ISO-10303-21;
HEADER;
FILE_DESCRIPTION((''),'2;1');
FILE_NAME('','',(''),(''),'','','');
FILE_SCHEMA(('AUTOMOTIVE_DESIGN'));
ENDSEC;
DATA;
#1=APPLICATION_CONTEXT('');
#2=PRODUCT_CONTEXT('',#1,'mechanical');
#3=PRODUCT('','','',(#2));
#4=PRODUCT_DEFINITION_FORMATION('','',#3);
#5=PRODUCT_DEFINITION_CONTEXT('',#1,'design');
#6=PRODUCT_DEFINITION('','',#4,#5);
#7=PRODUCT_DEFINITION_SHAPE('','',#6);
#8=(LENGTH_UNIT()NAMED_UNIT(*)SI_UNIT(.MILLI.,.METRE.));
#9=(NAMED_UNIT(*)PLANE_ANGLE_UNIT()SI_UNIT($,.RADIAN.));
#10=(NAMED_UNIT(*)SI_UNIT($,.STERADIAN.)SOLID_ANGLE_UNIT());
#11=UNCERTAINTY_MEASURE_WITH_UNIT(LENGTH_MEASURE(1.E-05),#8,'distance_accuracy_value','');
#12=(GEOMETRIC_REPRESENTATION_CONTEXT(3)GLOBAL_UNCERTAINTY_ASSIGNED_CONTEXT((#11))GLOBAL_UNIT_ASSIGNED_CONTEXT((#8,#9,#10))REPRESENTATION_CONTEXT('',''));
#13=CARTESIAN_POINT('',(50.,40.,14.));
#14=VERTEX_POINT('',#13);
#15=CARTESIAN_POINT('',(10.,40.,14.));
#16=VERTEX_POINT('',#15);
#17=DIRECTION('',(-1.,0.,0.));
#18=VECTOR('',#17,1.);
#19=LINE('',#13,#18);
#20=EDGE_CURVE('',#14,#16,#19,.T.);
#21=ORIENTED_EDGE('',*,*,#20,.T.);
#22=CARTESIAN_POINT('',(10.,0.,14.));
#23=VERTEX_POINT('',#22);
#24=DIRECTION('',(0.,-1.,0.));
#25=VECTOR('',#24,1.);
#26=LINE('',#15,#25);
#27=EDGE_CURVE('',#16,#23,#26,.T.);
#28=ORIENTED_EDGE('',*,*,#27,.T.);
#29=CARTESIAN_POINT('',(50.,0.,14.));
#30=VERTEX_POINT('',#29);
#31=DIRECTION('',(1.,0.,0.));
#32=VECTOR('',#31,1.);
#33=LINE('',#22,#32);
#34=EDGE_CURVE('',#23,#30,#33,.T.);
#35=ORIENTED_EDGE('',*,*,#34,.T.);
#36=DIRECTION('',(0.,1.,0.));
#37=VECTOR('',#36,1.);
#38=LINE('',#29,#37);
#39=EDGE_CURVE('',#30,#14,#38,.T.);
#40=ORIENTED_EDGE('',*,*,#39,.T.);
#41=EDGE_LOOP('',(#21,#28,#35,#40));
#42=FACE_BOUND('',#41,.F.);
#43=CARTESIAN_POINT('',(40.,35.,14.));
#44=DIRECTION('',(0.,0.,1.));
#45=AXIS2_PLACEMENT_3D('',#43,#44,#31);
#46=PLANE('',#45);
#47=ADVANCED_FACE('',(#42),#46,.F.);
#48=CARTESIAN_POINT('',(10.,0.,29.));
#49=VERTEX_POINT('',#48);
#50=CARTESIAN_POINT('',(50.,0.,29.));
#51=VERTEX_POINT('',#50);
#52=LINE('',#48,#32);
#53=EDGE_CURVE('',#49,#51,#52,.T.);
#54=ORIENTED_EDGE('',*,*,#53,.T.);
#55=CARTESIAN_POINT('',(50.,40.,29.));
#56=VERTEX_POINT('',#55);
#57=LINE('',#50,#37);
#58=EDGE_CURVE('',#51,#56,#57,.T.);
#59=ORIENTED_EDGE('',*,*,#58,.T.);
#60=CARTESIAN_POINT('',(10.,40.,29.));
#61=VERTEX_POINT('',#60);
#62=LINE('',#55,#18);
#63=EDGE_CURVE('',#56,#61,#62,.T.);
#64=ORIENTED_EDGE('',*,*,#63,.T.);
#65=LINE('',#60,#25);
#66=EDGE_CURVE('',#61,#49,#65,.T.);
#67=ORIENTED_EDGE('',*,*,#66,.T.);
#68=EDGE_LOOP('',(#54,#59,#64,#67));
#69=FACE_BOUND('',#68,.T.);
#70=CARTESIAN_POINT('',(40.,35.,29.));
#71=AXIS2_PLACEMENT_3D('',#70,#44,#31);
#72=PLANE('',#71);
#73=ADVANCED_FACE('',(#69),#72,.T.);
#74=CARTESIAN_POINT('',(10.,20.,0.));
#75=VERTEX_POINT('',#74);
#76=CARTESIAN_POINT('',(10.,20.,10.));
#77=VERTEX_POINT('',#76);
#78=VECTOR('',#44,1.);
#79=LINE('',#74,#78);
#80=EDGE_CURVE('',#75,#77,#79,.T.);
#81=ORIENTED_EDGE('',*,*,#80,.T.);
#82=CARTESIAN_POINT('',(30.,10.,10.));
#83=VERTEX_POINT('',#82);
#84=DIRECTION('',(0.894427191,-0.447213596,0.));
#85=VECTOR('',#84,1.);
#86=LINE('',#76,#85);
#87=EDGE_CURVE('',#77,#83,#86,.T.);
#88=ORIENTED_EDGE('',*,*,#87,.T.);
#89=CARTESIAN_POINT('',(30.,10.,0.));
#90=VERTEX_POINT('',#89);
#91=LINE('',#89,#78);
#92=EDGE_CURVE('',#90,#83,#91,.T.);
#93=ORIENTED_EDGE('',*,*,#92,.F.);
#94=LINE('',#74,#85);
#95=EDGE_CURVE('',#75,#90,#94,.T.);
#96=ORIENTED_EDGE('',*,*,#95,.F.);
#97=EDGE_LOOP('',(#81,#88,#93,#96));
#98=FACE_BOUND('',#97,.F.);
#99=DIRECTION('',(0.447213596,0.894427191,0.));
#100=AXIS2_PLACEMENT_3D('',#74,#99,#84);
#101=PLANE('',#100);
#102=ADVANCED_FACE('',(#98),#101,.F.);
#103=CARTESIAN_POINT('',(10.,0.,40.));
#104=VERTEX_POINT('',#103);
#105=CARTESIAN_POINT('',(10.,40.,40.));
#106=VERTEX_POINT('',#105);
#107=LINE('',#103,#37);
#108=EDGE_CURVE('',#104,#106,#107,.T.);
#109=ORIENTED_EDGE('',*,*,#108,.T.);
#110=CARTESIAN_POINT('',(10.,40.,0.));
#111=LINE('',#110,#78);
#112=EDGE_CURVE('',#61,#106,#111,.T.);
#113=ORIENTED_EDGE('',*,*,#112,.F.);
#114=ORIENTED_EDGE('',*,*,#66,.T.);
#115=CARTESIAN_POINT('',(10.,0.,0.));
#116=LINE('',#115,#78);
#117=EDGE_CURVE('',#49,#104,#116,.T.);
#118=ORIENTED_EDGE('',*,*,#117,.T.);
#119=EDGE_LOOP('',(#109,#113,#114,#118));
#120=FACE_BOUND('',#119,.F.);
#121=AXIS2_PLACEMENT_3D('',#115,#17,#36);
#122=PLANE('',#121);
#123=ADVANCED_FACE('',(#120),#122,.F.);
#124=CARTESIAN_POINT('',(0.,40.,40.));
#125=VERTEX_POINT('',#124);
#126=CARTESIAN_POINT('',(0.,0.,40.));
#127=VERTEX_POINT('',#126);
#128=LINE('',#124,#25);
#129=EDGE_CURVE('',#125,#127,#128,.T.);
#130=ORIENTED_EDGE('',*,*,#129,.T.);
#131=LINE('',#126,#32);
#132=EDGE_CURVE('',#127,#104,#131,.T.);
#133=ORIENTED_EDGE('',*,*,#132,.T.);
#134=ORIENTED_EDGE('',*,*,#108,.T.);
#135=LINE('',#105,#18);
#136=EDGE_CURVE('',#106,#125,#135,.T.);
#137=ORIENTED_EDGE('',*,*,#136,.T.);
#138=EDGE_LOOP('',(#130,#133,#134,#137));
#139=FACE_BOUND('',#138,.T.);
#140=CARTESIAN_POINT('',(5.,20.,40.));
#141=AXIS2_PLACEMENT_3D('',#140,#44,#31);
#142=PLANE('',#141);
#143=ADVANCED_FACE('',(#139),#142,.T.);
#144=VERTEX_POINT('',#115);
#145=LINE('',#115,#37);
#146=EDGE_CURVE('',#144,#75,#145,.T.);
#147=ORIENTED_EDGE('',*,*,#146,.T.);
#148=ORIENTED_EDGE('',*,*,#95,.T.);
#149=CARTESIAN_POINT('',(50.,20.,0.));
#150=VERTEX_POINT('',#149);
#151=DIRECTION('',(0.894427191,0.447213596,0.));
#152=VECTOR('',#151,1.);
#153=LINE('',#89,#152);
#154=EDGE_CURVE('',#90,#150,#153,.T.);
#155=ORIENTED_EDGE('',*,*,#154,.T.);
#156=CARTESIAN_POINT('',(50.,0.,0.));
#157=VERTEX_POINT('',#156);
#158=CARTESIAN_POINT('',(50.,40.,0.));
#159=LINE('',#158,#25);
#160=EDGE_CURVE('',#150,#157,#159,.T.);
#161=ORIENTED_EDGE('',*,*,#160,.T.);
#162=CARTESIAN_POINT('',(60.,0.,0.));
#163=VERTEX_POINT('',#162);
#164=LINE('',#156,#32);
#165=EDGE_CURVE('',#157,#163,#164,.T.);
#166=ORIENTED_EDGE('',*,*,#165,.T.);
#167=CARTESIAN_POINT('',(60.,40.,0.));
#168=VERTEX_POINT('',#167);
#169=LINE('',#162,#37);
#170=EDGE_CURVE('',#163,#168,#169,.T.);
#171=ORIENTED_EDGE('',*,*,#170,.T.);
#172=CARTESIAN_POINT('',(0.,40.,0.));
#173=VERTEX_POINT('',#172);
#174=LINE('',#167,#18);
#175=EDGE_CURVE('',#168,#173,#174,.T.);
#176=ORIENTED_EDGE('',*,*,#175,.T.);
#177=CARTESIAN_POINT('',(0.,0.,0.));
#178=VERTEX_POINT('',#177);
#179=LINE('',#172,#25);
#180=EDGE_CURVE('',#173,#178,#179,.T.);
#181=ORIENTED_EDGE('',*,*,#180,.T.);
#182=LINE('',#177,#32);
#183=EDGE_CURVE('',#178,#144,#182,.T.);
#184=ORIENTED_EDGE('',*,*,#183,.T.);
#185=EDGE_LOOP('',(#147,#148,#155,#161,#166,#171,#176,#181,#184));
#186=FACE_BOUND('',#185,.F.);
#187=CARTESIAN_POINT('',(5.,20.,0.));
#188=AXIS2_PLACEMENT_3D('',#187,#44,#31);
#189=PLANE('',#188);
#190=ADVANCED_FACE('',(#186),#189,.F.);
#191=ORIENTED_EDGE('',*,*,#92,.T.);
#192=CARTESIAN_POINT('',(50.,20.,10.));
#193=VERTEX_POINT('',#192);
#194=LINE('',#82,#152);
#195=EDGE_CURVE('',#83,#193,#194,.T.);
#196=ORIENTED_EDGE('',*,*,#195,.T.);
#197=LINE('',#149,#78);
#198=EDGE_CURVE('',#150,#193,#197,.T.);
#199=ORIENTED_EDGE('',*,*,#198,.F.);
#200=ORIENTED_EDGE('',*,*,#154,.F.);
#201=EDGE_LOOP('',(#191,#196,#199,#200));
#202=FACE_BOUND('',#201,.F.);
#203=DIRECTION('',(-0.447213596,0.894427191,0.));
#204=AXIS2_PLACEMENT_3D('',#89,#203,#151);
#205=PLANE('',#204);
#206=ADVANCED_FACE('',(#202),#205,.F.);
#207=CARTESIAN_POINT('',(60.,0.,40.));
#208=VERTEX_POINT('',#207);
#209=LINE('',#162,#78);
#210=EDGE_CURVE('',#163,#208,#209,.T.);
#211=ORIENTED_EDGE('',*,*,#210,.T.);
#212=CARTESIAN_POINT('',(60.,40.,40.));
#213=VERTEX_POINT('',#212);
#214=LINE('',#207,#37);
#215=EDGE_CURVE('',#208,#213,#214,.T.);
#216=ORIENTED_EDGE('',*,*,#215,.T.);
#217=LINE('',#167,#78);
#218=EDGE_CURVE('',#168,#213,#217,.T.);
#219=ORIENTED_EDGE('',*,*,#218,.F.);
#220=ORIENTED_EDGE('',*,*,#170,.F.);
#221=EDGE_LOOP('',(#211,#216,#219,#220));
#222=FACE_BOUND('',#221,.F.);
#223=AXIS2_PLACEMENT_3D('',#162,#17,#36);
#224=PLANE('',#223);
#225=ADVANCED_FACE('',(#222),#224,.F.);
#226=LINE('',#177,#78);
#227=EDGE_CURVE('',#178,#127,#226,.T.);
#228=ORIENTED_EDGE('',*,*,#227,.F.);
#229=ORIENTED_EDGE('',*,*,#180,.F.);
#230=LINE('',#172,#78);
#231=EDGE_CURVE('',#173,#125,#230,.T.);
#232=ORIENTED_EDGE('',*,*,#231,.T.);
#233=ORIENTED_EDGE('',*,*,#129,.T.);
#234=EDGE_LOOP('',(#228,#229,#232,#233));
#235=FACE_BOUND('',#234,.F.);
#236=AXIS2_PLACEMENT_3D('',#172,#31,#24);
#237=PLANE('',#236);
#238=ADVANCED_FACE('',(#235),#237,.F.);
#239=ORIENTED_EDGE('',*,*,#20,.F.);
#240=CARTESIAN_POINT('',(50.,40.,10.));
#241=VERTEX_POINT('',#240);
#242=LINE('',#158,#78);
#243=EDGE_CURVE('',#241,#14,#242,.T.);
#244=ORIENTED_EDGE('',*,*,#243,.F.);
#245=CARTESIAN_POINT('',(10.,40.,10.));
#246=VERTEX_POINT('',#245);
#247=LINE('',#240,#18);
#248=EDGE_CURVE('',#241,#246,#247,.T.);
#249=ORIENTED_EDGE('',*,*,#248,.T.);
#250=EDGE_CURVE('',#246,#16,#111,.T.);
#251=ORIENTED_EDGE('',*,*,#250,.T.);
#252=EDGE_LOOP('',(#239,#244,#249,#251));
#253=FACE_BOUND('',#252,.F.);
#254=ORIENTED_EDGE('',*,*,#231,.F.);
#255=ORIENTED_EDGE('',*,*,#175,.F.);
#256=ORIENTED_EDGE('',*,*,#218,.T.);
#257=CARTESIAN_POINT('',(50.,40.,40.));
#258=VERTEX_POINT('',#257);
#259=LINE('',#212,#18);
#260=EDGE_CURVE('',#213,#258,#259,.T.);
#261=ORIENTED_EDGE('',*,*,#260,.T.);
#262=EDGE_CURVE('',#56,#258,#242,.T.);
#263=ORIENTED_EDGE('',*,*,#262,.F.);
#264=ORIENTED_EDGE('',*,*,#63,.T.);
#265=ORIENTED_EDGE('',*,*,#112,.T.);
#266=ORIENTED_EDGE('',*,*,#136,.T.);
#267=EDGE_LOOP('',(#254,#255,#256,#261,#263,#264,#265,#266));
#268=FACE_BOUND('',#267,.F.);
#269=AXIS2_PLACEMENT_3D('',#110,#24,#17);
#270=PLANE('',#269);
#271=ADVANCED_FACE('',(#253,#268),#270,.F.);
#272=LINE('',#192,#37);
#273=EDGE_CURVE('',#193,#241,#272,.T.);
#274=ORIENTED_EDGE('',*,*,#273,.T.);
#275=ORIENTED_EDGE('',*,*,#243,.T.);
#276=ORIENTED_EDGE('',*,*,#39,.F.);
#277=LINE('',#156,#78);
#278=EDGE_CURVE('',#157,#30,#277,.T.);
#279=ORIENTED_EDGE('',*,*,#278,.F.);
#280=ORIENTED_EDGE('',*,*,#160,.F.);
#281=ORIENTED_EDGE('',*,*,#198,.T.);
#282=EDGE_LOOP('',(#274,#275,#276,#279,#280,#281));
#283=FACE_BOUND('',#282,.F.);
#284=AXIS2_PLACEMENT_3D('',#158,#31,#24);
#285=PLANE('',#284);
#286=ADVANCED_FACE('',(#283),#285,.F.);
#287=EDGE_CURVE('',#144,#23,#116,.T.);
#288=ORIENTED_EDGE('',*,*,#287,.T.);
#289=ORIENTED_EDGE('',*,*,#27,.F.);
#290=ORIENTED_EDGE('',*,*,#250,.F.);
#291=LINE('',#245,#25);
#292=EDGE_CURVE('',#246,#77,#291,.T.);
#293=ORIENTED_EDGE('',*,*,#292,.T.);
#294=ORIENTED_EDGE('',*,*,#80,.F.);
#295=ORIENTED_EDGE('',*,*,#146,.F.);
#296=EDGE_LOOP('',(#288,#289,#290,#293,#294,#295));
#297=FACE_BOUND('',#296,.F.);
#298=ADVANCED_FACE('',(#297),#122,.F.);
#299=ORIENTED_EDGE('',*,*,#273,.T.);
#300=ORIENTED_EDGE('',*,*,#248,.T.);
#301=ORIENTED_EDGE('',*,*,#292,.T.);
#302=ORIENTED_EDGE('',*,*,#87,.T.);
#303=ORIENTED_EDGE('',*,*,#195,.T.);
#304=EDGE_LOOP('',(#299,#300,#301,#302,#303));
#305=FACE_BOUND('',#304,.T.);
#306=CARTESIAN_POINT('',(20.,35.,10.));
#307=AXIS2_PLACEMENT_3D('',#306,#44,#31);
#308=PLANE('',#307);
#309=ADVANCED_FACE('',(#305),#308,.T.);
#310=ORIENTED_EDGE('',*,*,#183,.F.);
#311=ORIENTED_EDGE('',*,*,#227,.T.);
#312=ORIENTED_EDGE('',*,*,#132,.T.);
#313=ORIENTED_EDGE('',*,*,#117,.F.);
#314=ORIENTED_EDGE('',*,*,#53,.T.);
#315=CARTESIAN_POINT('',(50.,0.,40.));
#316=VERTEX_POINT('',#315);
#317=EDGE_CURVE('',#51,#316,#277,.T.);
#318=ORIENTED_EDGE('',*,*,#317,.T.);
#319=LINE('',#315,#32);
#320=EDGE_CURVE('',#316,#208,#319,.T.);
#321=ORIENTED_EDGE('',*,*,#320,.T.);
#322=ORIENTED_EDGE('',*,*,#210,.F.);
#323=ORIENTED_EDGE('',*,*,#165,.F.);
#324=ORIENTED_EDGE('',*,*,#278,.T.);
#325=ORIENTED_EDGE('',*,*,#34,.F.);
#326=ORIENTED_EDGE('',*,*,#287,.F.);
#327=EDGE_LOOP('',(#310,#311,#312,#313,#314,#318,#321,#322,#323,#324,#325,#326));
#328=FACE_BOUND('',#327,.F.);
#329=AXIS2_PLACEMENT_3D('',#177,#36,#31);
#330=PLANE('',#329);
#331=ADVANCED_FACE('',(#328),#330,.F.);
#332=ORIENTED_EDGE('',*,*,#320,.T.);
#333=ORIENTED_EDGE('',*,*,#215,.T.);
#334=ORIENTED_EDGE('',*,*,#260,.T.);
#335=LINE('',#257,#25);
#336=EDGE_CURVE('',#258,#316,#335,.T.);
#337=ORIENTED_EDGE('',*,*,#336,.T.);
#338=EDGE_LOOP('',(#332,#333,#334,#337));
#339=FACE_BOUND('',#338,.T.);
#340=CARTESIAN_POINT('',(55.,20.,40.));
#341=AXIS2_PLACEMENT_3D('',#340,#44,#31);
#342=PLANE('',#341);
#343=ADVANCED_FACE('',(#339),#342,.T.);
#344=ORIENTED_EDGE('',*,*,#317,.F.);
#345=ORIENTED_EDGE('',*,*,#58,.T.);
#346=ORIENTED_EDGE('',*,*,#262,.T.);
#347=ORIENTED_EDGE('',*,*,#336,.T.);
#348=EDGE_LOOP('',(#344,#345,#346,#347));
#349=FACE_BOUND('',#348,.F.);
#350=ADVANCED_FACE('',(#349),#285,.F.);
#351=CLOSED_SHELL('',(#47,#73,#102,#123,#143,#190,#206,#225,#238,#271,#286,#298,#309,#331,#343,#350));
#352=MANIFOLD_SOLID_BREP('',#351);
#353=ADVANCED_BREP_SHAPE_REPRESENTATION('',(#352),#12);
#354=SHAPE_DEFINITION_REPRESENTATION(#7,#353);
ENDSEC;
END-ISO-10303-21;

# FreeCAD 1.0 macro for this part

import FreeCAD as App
import Part
import Sketcher

V = App.Vector


def add_polygon(sketch, points):
    """Adds a closed chain of lines whose ends are joined by coincident constraints."""
    first, n = sketch.GeometryCount, len(points)
    for a, b in zip(points, points[1:] + points[:1]):
        sketch.addGeometry(Part.LineSegment(App.Vector(*a, 0), App.Vector(*b, 0)), False)
    for i in range(n):
        sketch.addConstraint(Sketcher.Constraint("Coincident", first + i, 2, first + (i + 1) % n, 1))

doc = App.newDocument("Part")
params = doc.addObject("Spreadsheet::Sheet", "Params")
for row, (alias, value) in enumerate([
    ("sketch1_width", "40 mm"),
    ("sketch1_height", "20 mm"),
    ("pad1_length", "10 mm"),
    ("sketch2_width", "10 mm"),
    ("sketch2_height", "40 mm"),
    ("pad2_length", "40 mm"),
    ("sketch3_width", "40 mm"),
    ("pad3_length", "15 mm"),
], start=1):
    params.set(f"A{row}", alias)
    params.set(f"B{row}", "=" + value)
    params.setAlias(f"B{row}", alias)

body = doc.addObject("PartDesign::Body", "Body")

# Sketch on XY plane
sketch1 = doc.addObject("Sketcher::SketchObject", "Sketch")
body.addObject(sketch1)
sketch1.AttachmentSupport = (doc.XY_Plane, [""])
sketch1.MapMode = "FlatFace"
add_polygon(sketch1, [(10, 40), (10, 20), (30, 10), (50, 20), (50, 40)])  # lines 0-4
sketch1.addConstraint(Sketcher.Constraint("Vertical", 0))
sketch1.addConstraint(Sketcher.Constraint("Vertical", 3))
sketch1.addConstraint(Sketcher.Constraint("Horizontal", 4))
sketch1.addConstraint(Sketcher.Constraint("Horizontal", 0, 2, 2, 2))
sketch1.addConstraint(Sketcher.Constraint("Equal", 1, 2))
sketch1.addConstraint(Sketcher.Constraint("DistanceX", 4, 2, 4, 1, 40.0))
sketch1.addConstraint(Sketcher.Constraint("DistanceY", 0, 2, 0, 1, 20.0))
sketch1.addConstraint(Sketcher.Constraint("DistanceX", -1, 1, 0, 2, 10.0))
sketch1.addConstraint(Sketcher.Constraint("DistanceY", -1, 1, 0, 2, 20.0))
sketch1.addConstraint(Sketcher.Constraint("DistanceY", -1, 1, 1, 2, 10.0))
sketch1.setExpression("Constraints[10]", "Params.sketch1_width")
sketch1.setExpression("Constraints[11]", "Params.sketch1_height")
pad1 = doc.addObject("PartDesign::Pad", "Pad")
body.addObject(pad1)
pad1.Profile = sketch1
pad1.setExpression("Length", "Params.pad1_length")

# Sketch on XY plane
sketch2 = doc.addObject("Sketcher::SketchObject", "Sketch001")
body.addObject(sketch2)
sketch2.AttachmentSupport = (doc.XY_Plane, [""])
sketch2.MapMode = "FlatFace"
add_polygon(sketch2, [(0, 40), (0, 0), (10, 0), (10, 40)])  # lines 0-3
add_polygon(sketch2, [(50, 0), (60, 0), (60, 40), (50, 40)])  # lines 4-7
sketch2.addConstraint(Sketcher.Constraint("Vertical", 0))
sketch2.addConstraint(Sketcher.Constraint("Horizontal", 1))
sketch2.addConstraint(Sketcher.Constraint("Vertical", 2))
sketch2.addConstraint(Sketcher.Constraint("Horizontal", 3))
sketch2.addConstraint(Sketcher.Constraint("Horizontal", 4))
sketch2.addConstraint(Sketcher.Constraint("Vertical", 5))
sketch2.addConstraint(Sketcher.Constraint("Horizontal", 6))
sketch2.addConstraint(Sketcher.Constraint("Vertical", 7))
sketch2.addConstraint(Sketcher.Constraint("Coincident", 0, 2, -1, 1))
sketch2.addConstraint(Sketcher.Constraint("PointOnObject", 4, 2, -1))
sketch2.addConstraint(Sketcher.Constraint("Horizontal", 3, 2, 5, 2))
sketch2.addConstraint(Sketcher.Constraint("Equal", 3, 4))
sketch2.addConstraint(Sketcher.Constraint("DistanceX", 1, 1, 1, 2, 10.0))
sketch2.addConstraint(Sketcher.Constraint("DistanceY", 0, 2, 0, 1, 40.0))
sketch2.addConstraint(Sketcher.Constraint("DistanceX", -1, 1, 4, 2, 60.0))
sketch2.setExpression("Constraints[20]", "Params.sketch2_width")
sketch2.setExpression("Constraints[21]", "Params.sketch2_height")
pad2 = doc.addObject("PartDesign::Pad", "Pad001")
body.addObject(pad2)
pad2.Profile = sketch2
pad2.setExpression("Length", "Params.pad2_length")

# Sketch on XY plane
sketch3 = doc.addObject("Sketcher::SketchObject", "Sketch002")
body.addObject(sketch3)
sketch3.AttachmentSupport = (doc.XY_Plane, [""])
sketch3.MapMode = "FlatFace"
sketch3.AttachmentOffset = App.Placement(V(0, 0, 14), App.Rotation())
add_polygon(sketch3, [(50, 40), (10, 40), (10, 0), (50, 0)])  # lines 0-3
sketch3.addConstraint(Sketcher.Constraint("Horizontal", 0))
sketch3.addConstraint(Sketcher.Constraint("Vertical", 1))
sketch3.addConstraint(Sketcher.Constraint("Horizontal", 2))
sketch3.addConstraint(Sketcher.Constraint("Vertical", 3))
sketch3.addConstraint(Sketcher.Constraint("PointOnObject", 1, 2, -1))
sketch3.addConstraint(Sketcher.Constraint("Equal", 2, 1))
sketch3.addConstraint(Sketcher.Constraint("DistanceX", 0, 2, 0, 1, 40.0))
sketch3.addConstraint(Sketcher.Constraint("DistanceX", -1, 1, 0, 2, 10.0))
sketch3.setExpression("Constraints[10]", "Params.sketch3_width")
pad3 = doc.addObject("PartDesign::Pad", "Pad002")
body.addObject(pad3)
pad3.Profile = sketch3
pad3.setExpression("Length", "Params.pad3_length")

doc.recompute()
